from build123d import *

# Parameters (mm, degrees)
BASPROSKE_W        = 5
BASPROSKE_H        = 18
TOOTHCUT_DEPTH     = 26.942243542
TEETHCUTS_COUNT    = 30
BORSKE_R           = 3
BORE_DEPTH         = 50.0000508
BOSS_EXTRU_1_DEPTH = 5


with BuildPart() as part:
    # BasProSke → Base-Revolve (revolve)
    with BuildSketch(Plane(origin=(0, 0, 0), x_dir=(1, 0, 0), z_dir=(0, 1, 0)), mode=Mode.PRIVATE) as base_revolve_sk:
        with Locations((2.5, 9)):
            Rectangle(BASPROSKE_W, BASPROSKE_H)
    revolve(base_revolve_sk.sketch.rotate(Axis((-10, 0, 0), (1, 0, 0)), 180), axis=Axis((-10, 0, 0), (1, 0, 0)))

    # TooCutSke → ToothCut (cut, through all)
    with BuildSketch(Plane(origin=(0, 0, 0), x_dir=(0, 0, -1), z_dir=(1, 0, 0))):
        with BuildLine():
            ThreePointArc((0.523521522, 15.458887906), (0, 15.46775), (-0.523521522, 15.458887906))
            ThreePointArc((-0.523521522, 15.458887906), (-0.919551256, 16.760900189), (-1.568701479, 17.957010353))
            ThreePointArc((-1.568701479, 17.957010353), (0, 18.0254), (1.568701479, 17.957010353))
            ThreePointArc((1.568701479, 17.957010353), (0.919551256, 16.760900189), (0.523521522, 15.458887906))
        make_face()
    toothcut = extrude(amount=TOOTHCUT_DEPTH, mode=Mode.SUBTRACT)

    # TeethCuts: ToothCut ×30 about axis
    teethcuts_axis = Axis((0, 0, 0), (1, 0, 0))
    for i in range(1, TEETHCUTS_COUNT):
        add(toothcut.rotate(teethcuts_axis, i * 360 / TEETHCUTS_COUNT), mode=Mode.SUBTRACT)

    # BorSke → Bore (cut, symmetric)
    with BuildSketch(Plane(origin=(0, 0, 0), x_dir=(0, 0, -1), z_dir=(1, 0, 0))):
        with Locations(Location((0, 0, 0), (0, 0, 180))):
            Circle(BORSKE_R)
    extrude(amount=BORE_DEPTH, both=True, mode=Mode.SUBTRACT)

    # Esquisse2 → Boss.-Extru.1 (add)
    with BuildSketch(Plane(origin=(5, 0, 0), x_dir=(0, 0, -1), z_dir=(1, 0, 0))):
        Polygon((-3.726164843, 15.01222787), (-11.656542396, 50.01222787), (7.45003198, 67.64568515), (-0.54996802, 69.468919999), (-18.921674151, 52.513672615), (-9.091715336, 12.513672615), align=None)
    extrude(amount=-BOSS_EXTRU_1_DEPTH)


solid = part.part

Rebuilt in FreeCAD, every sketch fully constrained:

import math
import FreeCAD as App
import Part
import Sketcher

V = App.Vector

doc = App.newDocument("Part")
body = doc.addObject("PartDesign::Body", "Body")

sketch1 = body.newObject("Sketcher::SketchObject", "Sketch")
sketch1.AttachmentSupport = (doc.getObject("XZ_Plane"), [""])
sketch1.MapMode = "FlatFace"
sketch1.addGeometry([
    Part.LineSegment(V(0, -18, 0), V(0, 0, 0)),
    Part.LineSegment(V(0, 0, 0), V(5, 0, 0)),
    Part.LineSegment(V(5, 0, 0), V(5, -18, 0)),
    Part.LineSegment(V(5, -18, 0), V(0, -18, 0)),
], False)
sketch1.addConstraint([
    Sketcher.Constraint("Coincident", 0, 2, 1, 1),
    Sketcher.Constraint("Coincident", 1, 2, 2, 1),
    Sketcher.Constraint("Coincident", 2, 2, 3, 1),
    Sketcher.Constraint("Coincident", 3, 2, 0, 1),
    Sketcher.Constraint("Vertical", 0),
    Sketcher.Constraint("Horizontal", 1),
    Sketcher.Constraint("Vertical", 2),
    Sketcher.Constraint("Horizontal", 3),
    Sketcher.Constraint("Coincident", 0, 2, -1, 1),
    Sketcher.Constraint("DistanceX", 1, 1, 1, 2, 5.0),
    Sketcher.Constraint("DistanceY", 0, 1, 0, 2, 18.0),
])
revolution = body.newObject("PartDesign::Revolution", "Revolution")
revolution.Profile = sketch1
revolution.ReferenceAxis = (sketch1, ["H_Axis"])
revolution.Angle = 360

sketch2 = body.newObject("Sketcher::SketchObject", "Sketch001")
sketch2.AttachmentSupport = (doc.getObject("YZ_Plane"), [""])
sketch2.MapMode = "FlatFace"
sketch2.addGeometry([
    Part.ArcOfCircle(Part.Circle(V(0, 0, 0), V(0, 0, 1), 15.5), math.radians(-1.94), math.radians(1.94)),
    Part.ArcOfCircle(Part.Circle(V(14.2, -7.1, 0), V(0, 0, 1), 6.8), math.radians(56), math.radians(79)),
    Part.ArcOfCircle(Part.Circle(V(0, 0, 0), V(0, 0, 1), 18), math.radians(-4.99), math.radians(4.99)),
    Part.ArcOfCircle(Part.Circle(V(14.2, 7.1, 0), V(0, 0, 1), 6.8), math.radians(-79), math.radians(-56)),
], False)
sketch2.addConstraint([
    Sketcher.Constraint("Coincident", 0, 1, 1, 2),
    Sketcher.Constraint("Coincident", 1, 1, 2, 1),
    Sketcher.Constraint("Coincident", 2, 2, 3, 2),
    Sketcher.Constraint("Coincident", 3, 1, 0, 2),
    Sketcher.Constraint("Coincident", 0, 3, -1, 1),
    Sketcher.Constraint("Coincident", 2, 3, -1, 1),
    Sketcher.Constraint("Equal", 1, 3),
    Sketcher.Constraint("Symmetric", 1, 3, 3, 3, -1),
    Sketcher.Constraint("Radius", 1, 6.75),
    Sketcher.Constraint("Radius", 2, 18.0254),
    Sketcher.Constraint("Radius", 0, 15.467751),
    Sketcher.Constraint("DistanceY", 1, 1, -1, 1, 1.568701),
    Sketcher.Constraint("DistanceY", 0, 1, -1, 1, 0.523522),
])
pocket1 = body.newObject("PartDesign::Pocket", "Pocket")
pocket1.Profile = sketch2
pocket1.Type = "ThroughAll"
pocket1.Reversed = True
doc.recompute()

polarpattern = body.newObject("PartDesign::PolarPattern", "PolarPattern")
polarpattern.Originals = [pocket1]
polarpattern.Axis = (doc.getObject("X_Axis"), [""])
polarpattern.Angle = 360
polarpattern.Occurrences = 30
body.Tip = polarpattern

sketch3 = body.newObject("Sketcher::SketchObject", "Sketch002")
sketch3.AttachmentSupport = (doc.getObject("YZ_Plane"), [""])
sketch3.MapMode = "FlatFace"
sketch3.addGeometry(Part.Circle(V(0, 0, 0), V(0, 0, 1), 3), False)
sketch3.addConstraint([
    Sketcher.Constraint("Coincident", 0, 3, -1, 1),
    Sketcher.Constraint("Diameter", 0, 6.0),
])
pocket2 = body.newObject("PartDesign::Pocket", "Pocket001")
pocket2.Profile = sketch3
pocket2.Length = 100.000102
pocket2.Midplane = True

sketch4 = body.newObject("Sketcher::SketchObject", "Sketch003")
sketch4.AttachmentSupport = (doc.getObject("YZ_Plane"), [""])
sketch4.MapMode = "FlatFace"
sketch4.AttachmentOffset = App.Placement(V(0, 0, 5), App.Rotation())
sketch4.addGeometry([
    Part.LineSegment(V(15, 4, 0), V(50, 12, 0)),
    Part.LineSegment(V(50, 12, 0), V(68, -7, 0)),
    Part.LineSegment(V(68, -7, 0), V(69, 1, 0)),
    Part.LineSegment(V(69, 1, 0), V(53, 19, 0)),
    Part.LineSegment(V(53, 19, 0), V(13, 9, 0)),
    Part.LineSegment(V(13, 9, 0), V(15, 4, 0)),
], False)
sketch4.addConstraint([
    Sketcher.Constraint("Coincident", 0, 2, 1, 1),
    Sketcher.Constraint("Coincident", 1, 2, 2, 1),
    Sketcher.Constraint("Coincident", 2, 2, 3, 1),
    Sketcher.Constraint("Coincident", 3, 2, 4, 1),
    Sketcher.Constraint("Coincident", 4, 2, 5, 1),
    Sketcher.Constraint("Coincident", 5, 2, 0, 1),
    Sketcher.Constraint("Parallel", 1, 3),
    Sketcher.Constraint("Distance", 1, 26.0),
    Sketcher.Constraint("Distance", 3, 25.0),
    Sketcher.Constraint("DistanceY", 1, 2, 2, 2, 8.0),
    Sketcher.Constraint("DistanceX", 4, 2, 3, 2, 40.0),
    Sketcher.Constraint("DistanceX", 5, 2, 0, 2, 35.0),
    Sketcher.Constraint("Distance", 2, 8.205132),
    Sketcher.Constraint("DistanceY", 1, 2, -1, 1, 7.450032),
    Sketcher.Constraint("DistanceX", -1, 1, 2, 2, 69.46892),
    Sketcher.Constraint("DistanceY", 0, 2, 3, 2, 7.265132),
    Sketcher.Constraint("DistanceY", 4, 2, 3, 2, 9.829959),
    Sketcher.Constraint("DistanceY", 5, 2, 4, 2, 5.36555),
])
pad1 = body.newObject("PartDesign::Pad", "Pad")
pad1.Profile = sketch4
pad1.Length = 5
pad1.Reversed = True

doc.recompute()
